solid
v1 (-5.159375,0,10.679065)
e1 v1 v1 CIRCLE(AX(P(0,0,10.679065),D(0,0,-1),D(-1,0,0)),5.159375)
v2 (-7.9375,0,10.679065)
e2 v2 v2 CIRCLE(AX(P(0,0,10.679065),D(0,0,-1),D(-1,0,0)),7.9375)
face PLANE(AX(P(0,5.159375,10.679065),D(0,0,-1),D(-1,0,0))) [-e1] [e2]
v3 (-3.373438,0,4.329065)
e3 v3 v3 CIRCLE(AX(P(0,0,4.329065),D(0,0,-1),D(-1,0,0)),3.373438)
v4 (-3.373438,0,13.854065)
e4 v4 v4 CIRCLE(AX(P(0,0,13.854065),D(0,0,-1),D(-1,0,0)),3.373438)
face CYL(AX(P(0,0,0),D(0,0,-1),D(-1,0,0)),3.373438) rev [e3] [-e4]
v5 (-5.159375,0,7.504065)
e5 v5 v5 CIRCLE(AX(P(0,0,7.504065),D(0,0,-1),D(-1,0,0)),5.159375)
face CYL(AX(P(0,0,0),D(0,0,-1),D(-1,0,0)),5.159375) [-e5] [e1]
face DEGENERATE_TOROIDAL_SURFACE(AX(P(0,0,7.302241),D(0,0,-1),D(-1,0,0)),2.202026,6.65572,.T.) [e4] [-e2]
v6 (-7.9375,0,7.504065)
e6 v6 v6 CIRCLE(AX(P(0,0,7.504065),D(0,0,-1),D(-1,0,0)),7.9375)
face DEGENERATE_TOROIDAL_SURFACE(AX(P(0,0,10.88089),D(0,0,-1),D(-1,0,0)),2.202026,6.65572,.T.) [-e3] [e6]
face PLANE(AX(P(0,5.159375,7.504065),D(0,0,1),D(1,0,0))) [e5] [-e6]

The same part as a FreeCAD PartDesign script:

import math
import FreeCAD as App
import Part
import Sketcher
from FreeCAD import Vector
Q = App.Units.Quantity

doc = App.newDocument("Part")
body = doc.addObject("PartDesign::Body", "Body")

sketch1 = doc.addObject("Sketcher::SketchObject", "Sketch")
body.addObject(sketch1)
sketch1.AttachmentSupport = (doc.YZ_Plane, [""])
sketch1.MapMode = "FlatFace"
sketch1.addGeometry(Part.LineSegment(Vector(3.373438, 13.854065, 0), Vector(3.373438, 4.329065, 0)), False)
sketch1.addGeometry(Part.ArcOfCircle(Part.Circle(Vector(2.202026, 10.88089, 0), Vector(0, 0, 1), 6.65572), math.radians(-79.863098), math.radians(-30.487923)), False)
sketch1.addGeometry(Part.LineSegment(Vector(7.9375, 7.504065, 0), Vector(5.159375, 7.504065, 0)), False)
sketch1.addGeometry(Part.LineSegment(Vector(5.159375, 7.504065, 0), Vector(5.159375, 10.679065, 0)), False)
sketch1.addGeometry(Part.LineSegment(Vector(5.159375, 10.679065, 0), Vector(7.9375, 10.679065, 0)), False)
sketch1.addGeometry(Part.ArcOfCircle(Part.Circle(Vector(2.202026, 7.302241, 0), Vector(0, 0, 1), 6.65572), math.radians(30.487923), math.radians(79.863098)), False)
sketch1.addConstraint(Sketcher.Constraint("Coincident", 0, 2, 1, 1))
sketch1.addConstraint(Sketcher.Constraint("Coincident", 1, 2, 2, 1))
sketch1.addConstraint(Sketcher.Constraint("Coincident", 2, 2, 3, 1))
sketch1.addConstraint(Sketcher.Constraint("Coincident", 3, 2, 4, 1))
sketch1.addConstraint(Sketcher.Constraint("Coincident", 4, 2, 5, 1))
sketch1.addConstraint(Sketcher.Constraint("Coincident", 5, 2, 0, 1))
sketch1.addConstraint(Sketcher.Constraint("Vertical", 0))
sketch1.addConstraint(Sketcher.Constraint("Horizontal", 2))
sketch1.addConstraint(Sketcher.Constraint("Vertical", 3))
sketch1.addConstraint(Sketcher.Constraint("Horizontal", 4))
sketch1.addConstraint(Sketcher.Constraint("Equal", 1, 5))
sketch1.addConstraint(Sketcher.Constraint("Vertical", 1, 3, 5, 3))
sketch1.addConstraint(Sketcher.Constraint("Vertical", 1, 2, 4, 2))
sketch1.addConstraint(Sketcher.Constraint("DistanceX", 2, 2, 2, 1, Q("0.109375 in")))
sketch1.addConstraint(Sketcher.Constraint("DistanceY", 0, 2, 0, 1, Q("0.375 in")))
sketch1.addConstraint(Sketcher.Constraint("DistanceY", 3, 1, 3, 2, Q("0.125 in")))
sketch1.addConstraint(Sketcher.Constraint("DistanceX", -1, 1, 1, 2, Q("0.3125 in")))
sketch1.addConstraint(Sketcher.Constraint("Radius", 1, 6.65572))
sketch1.addConstraint(Sketcher.Constraint("DistanceY", -1, 1, 1, 3, 10.88089))
sketch1.addConstraint(Sketcher.Constraint("DistanceY", -1, 1, 5, 3, 7.302241))
revolution = doc.addObject("PartDesign::Revolution", "Revolution")
body.addObject(revolution)
revolution.Profile = sketch1
revolution.ReferenceAxis = (sketch1, ["V_Axis"])
revolution.Angle = 360

doc.recompute()
